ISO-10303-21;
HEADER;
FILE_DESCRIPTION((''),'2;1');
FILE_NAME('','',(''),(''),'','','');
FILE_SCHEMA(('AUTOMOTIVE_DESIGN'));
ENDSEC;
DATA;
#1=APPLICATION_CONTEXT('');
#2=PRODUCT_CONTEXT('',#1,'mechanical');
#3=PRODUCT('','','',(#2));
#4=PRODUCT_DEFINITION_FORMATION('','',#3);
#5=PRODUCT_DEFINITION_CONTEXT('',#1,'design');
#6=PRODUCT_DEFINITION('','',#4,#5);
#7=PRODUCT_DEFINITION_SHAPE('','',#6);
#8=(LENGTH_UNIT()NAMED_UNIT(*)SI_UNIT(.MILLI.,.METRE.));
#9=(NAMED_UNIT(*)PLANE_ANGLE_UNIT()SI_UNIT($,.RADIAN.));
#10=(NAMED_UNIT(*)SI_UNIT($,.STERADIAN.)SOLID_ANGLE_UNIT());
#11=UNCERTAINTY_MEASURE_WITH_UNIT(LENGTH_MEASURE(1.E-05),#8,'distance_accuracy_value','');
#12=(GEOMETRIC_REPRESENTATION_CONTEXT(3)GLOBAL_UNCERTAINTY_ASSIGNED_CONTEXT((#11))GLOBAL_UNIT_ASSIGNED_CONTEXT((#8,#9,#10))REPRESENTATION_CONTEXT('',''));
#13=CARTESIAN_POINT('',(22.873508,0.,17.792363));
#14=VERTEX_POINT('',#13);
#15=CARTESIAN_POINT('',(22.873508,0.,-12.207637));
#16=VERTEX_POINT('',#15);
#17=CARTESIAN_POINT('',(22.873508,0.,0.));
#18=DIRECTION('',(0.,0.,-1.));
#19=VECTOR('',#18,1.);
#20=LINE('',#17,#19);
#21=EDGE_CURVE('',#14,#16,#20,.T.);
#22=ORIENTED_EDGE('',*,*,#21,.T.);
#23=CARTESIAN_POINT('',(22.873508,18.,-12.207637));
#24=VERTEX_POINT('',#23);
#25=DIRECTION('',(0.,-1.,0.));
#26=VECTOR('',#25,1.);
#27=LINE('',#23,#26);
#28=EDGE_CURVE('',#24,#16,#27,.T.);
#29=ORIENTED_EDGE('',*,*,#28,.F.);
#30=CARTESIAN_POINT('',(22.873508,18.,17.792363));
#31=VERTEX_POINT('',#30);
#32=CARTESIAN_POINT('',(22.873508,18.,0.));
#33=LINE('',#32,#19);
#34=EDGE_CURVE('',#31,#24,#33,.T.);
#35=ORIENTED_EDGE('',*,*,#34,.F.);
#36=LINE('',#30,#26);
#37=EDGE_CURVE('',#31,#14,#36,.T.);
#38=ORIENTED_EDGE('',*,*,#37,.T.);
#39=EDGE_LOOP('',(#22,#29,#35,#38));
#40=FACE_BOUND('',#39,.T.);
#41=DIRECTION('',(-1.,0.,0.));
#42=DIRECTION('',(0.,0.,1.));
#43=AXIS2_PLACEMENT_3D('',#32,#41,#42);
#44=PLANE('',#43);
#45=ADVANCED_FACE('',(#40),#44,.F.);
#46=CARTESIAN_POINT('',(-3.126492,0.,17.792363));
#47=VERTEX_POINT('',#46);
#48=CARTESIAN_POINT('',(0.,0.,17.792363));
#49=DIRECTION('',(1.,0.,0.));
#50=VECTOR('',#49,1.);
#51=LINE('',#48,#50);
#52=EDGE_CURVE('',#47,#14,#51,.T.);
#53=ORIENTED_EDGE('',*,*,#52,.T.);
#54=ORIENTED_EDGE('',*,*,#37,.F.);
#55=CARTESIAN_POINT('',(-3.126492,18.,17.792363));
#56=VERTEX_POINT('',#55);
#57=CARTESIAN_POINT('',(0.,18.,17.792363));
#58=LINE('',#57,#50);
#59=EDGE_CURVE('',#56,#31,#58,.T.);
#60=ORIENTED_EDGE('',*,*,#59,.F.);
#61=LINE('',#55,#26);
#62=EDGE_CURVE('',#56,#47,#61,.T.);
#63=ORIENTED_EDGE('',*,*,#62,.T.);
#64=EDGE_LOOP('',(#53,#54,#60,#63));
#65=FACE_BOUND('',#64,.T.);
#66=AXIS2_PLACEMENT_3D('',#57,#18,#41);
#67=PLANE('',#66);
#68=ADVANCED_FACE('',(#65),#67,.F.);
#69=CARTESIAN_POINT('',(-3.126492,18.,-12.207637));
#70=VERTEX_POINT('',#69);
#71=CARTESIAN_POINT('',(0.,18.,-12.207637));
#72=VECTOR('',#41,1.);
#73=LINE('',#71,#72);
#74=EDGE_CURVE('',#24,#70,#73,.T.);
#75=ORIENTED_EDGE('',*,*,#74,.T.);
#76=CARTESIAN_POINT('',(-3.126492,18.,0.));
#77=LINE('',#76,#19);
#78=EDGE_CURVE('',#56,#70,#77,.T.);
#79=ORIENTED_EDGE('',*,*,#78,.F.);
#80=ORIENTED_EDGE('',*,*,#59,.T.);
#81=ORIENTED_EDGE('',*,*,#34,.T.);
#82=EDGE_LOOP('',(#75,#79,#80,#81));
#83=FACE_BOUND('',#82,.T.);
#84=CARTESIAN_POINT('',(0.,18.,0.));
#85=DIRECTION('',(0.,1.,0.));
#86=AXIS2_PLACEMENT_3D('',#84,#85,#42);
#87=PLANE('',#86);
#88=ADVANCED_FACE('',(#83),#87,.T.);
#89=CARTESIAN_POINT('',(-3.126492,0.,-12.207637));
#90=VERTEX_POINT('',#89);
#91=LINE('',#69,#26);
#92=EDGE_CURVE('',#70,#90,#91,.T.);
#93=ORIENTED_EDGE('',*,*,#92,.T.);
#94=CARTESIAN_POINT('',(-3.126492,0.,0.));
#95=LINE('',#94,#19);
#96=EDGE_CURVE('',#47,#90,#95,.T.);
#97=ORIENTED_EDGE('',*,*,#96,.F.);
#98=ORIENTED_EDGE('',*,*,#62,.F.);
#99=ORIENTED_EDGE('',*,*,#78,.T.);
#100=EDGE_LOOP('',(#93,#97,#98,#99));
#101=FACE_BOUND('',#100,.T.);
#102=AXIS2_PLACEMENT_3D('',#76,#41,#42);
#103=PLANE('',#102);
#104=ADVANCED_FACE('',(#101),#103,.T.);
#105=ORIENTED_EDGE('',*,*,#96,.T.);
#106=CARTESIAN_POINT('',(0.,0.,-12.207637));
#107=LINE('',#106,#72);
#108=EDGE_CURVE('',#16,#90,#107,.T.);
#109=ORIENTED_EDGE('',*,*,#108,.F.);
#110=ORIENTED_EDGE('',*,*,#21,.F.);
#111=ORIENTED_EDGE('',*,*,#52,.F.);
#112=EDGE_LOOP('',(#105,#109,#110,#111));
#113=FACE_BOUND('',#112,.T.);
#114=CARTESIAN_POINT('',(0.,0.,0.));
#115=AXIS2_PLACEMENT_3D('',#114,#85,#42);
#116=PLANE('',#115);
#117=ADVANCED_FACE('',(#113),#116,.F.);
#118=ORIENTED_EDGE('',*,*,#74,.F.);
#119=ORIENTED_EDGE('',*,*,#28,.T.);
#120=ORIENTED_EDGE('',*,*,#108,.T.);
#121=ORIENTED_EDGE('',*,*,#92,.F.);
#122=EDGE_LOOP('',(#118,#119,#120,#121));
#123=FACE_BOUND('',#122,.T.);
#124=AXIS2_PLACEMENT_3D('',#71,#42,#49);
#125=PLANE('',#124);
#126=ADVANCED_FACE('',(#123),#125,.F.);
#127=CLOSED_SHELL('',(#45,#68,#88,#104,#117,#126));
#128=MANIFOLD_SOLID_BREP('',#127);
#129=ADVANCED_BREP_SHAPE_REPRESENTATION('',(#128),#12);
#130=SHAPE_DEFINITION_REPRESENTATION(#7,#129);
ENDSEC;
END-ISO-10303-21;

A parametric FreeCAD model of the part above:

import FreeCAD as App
import Part
import Sketcher
from FreeCAD import Vector

doc = App.newDocument("Part")
body = doc.addObject("PartDesign::Body", "Body")

# Sketch on XZ plane
sketch1 = doc.addObject("Sketcher::SketchObject", "Sketch")
body.addObject(sketch1)
sketch1.AttachmentSupport = (doc.XZ_Plane, [""])
sketch1.MapMode = "FlatFace"
sketch1.addGeometry([
    Part.LineSegment(Vector(-3, -12, 0), Vector(-3, 18, 0)),
    Part.LineSegment(Vector(-3, 18, 0), Vector(23, 18, 0)),
    Part.LineSegment(Vector(23, 18, 0), Vector(23, -12, 0)),
    Part.LineSegment(Vector(23, -12, 0), Vector(-3, -12, 0)),
], False)
sketch1.addConstraint([
    Sketcher.Constraint("Coincident", 0, 2, 1, 1),
    Sketcher.Constraint("Coincident", 1, 2, 2, 1),
    Sketcher.Constraint("Coincident", 2, 2, 3, 1),
    Sketcher.Constraint("Coincident", 3, 2, 0, 1),
    Sketcher.Constraint("Vertical", 0),
    Sketcher.Constraint("Horizontal", 1),
    Sketcher.Constraint("Vertical", 2),
    Sketcher.Constraint("Horizontal", 3),
    Sketcher.Constraint("DistanceX", 1, 1, 1, 2, 26.0),
    Sketcher.Constraint("DistanceY", 0, 1, 0, 2, 30.0),
    Sketcher.Constraint("DistanceX", 0, 2, -1, 1, 3.126492),
    Sketcher.Constraint("DistanceY", -1, 1, 0, 2, 17.792363),
])
pad1 = doc.addObject("PartDesign::Pad", "Pad")
body.addObject(pad1)
pad1.Profile = sketch1
pad1.Length = 18
pad1.Reversed = True

doc.recompute()
